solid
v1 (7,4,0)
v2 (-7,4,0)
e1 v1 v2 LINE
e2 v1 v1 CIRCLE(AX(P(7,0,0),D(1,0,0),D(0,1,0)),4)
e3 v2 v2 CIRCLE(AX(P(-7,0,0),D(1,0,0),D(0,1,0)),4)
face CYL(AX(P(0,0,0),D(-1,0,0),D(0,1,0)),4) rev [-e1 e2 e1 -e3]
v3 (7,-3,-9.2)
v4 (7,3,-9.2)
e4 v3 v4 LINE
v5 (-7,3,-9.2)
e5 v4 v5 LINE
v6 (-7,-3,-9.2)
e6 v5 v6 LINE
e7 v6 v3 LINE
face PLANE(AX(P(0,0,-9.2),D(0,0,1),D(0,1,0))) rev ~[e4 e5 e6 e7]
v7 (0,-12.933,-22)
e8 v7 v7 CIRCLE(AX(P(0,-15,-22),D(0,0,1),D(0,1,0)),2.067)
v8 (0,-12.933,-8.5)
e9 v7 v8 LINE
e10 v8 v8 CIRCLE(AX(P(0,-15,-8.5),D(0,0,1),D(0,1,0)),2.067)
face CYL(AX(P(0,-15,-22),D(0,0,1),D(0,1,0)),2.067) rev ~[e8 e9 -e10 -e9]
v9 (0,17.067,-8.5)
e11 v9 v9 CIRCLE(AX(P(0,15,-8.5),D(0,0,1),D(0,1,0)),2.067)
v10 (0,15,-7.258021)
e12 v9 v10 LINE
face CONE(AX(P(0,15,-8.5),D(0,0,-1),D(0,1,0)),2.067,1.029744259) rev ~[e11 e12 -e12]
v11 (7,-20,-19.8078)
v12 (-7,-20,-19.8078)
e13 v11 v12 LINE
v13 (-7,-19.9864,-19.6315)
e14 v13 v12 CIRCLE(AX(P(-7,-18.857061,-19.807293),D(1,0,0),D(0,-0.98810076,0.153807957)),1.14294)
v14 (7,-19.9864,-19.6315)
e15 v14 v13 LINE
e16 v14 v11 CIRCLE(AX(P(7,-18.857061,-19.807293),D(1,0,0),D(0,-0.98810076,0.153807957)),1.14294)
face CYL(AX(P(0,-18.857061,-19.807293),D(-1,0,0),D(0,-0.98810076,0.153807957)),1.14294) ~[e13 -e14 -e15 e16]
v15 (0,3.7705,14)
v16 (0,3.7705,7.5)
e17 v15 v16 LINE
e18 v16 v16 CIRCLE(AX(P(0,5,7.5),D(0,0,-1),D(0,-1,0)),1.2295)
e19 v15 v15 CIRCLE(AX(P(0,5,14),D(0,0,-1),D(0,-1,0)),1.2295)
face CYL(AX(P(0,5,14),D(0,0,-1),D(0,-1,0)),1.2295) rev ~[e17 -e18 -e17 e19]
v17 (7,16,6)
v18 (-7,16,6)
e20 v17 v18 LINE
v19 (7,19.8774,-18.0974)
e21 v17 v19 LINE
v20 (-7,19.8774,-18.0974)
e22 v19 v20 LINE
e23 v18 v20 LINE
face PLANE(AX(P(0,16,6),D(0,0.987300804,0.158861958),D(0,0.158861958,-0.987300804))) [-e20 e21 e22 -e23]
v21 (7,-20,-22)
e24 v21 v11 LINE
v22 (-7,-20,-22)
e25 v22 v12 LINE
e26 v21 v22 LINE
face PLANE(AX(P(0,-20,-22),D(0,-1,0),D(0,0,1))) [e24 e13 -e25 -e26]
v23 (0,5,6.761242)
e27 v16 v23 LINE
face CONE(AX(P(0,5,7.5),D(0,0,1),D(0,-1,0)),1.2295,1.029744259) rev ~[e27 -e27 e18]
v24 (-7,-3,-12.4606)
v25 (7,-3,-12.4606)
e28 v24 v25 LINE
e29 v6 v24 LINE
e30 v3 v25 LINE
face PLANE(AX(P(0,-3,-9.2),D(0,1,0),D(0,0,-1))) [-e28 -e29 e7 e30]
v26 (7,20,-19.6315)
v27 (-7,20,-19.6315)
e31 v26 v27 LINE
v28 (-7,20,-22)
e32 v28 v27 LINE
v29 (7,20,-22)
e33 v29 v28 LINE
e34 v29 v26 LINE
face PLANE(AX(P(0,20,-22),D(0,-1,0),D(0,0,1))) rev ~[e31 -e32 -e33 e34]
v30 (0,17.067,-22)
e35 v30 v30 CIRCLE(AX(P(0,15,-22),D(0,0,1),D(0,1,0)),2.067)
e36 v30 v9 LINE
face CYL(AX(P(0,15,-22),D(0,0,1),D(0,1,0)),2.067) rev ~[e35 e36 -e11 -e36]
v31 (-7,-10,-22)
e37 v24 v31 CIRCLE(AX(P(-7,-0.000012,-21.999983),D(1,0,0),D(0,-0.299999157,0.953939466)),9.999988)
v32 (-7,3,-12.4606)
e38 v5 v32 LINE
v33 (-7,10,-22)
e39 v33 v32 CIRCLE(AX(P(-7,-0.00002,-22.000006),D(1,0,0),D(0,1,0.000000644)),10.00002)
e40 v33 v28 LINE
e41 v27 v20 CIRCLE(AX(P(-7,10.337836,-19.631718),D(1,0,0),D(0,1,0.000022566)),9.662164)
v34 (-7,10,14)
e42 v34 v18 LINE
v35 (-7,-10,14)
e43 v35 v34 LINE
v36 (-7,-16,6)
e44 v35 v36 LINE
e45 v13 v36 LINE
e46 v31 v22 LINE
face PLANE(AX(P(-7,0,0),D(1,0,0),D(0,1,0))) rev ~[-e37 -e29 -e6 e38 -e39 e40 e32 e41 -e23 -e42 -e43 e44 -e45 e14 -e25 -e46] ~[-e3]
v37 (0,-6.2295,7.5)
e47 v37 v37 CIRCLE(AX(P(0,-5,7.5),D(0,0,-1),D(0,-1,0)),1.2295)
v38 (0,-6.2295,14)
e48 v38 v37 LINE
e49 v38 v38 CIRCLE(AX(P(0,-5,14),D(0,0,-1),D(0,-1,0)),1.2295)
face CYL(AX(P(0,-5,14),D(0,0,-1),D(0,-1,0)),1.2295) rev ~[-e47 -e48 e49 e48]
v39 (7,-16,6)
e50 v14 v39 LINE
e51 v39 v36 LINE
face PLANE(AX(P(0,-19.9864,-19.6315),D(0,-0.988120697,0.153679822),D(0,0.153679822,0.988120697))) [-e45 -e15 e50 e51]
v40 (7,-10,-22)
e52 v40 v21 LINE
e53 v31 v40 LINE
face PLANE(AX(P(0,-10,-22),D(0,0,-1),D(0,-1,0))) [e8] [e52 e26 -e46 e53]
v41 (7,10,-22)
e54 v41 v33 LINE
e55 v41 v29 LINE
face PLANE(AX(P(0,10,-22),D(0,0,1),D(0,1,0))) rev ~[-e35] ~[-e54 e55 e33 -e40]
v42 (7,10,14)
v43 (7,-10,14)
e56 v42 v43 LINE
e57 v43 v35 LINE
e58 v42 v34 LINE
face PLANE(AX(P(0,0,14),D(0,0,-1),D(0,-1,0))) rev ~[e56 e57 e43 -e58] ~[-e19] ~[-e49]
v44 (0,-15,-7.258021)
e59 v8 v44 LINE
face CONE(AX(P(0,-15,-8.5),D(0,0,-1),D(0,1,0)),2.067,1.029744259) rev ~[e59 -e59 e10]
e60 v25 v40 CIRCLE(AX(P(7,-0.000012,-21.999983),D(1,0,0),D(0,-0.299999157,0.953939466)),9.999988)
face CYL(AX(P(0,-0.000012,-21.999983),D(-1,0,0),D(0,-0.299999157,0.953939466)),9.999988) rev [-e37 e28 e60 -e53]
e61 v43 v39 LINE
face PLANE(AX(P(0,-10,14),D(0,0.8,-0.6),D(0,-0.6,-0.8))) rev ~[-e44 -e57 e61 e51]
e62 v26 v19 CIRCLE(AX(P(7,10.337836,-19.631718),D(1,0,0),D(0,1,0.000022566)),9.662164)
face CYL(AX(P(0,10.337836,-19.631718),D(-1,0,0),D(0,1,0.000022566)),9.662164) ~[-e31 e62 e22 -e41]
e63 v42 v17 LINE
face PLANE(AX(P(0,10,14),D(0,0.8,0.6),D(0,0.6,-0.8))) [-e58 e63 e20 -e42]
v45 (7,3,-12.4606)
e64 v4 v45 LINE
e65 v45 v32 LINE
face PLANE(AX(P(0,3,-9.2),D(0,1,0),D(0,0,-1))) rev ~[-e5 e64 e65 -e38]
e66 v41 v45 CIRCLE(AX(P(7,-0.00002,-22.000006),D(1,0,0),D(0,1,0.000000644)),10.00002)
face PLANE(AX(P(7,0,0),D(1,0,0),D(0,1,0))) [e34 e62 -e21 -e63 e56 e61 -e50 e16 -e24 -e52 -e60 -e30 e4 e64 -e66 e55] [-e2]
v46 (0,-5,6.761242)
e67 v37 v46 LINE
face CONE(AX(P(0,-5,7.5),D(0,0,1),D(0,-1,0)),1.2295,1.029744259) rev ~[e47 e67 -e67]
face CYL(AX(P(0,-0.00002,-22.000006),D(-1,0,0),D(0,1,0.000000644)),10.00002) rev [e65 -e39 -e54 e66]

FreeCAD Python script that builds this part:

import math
import FreeCAD as App
import Part
import Sketcher

V = App.Vector
Q = App.Units.Quantity

doc = App.newDocument("Part")
params = doc.addObject("Spreadsheet::Sheet", "Params")
for row, (alias, value) in enumerate([
    ("sketch1_diameter", "8 mm"),
    ("sketch1_radius", "10 mm"),
    ("sketch1_width", "10 mm"),
    ("sketch1_width2", "6 mm"),
    ("sketch1_length", "10 mm"),
    ("pad1_length", "14 mm"),
    ("hole_diameter", "4.134 mm"),
    ("hole_depth", "13.5 mm"),
    ("hole2_diameter", "2.459 mm"),
    ("hole2_depth", "6.5 mm"),
], start=1):
    params.set(f"A{row}", alias)
    params.set(f"B{row}", "=" + value)
    params.setAlias(f"B{row}", alias)

body = doc.addObject("PartDesign::Body", "Body")

# Sketch on YZ plane
sketch1 = doc.addObject("Sketcher::SketchObject", "Sketch")
body.addObject(sketch1)
sketch1.AttachmentSupport = (doc.YZ_Plane, [""])
sketch1.MapMode = "FlatFace"
sketch1.addGeometry([
    Part.LineSegment(V(-20, -22, 0), V(-10, -22, 0)),  # 0
    Part.ArcOfCircle(Part.Circle(V(0, -22, 0), V(0, 0, 1), 10), math.radians(107), math.radians(180)),  # 1
    Part.LineSegment(V(-3, -12.46, 0), V(-3, -9.2, 0)),  # 2
    Part.LineSegment(V(-3, -9.2, 0), V(3, -9.2, 0)),  # 3
    Part.LineSegment(V(3, -9.2, 0), V(3, -12.46, 0)),  # 4
    Part.ArcOfCircle(Part.Circle(V(0, -22, 0), V(0, 0, 1), 10), math.radians(0), math.radians(73)),  # 5
    Part.LineSegment(V(10, -22, 0), V(20, -22, 0)),  # 6
    Part.LineSegment(V(20, -22, 0), V(20, -19.63, 0)),  # 7
    Part.ArcOfCircle(Part.Circle(V(10.34, -19.63, 0), V(0, 0, 1), 9.66), math.radians(0), math.radians(9.14)),  # 8
    Part.LineSegment(V(19.88, -18.1, 0), V(16, 6, 0)),  # 9
    Part.LineSegment(V(16, 6, 0), V(10, 14, 0)),  # 10
    Part.LineSegment(V(10, 14, 0), V(-10, 14, 0)),  # 11
    Part.LineSegment(V(-10, 14, 0), V(-16, 6, 0)),  # 12
    Part.LineSegment(V(-16, 6, 0), V(-19.99, -19.63, 0)),  # 13
    Part.ArcOfCircle(Part.Circle(V(-18.86, -19.81, 0), V(0, 0, 1), 1.14), math.radians(171.15), math.radians(180.03)),  # 14
    Part.LineSegment(V(-20, -19.81, 0), V(-20, -22, 0)),  # 15
    Part.Circle(V(0, 0, 0), V(0, 0, 1), 4),  # 16
], False)
sketch1.addConstraint([
    Sketcher.Constraint("Coincident", 0, 2, 1, 2),
    Sketcher.Constraint("Coincident", 1, 1, 2, 1),
    Sketcher.Constraint("Coincident", 2, 2, 3, 1),
    Sketcher.Constraint("Coincident", 3, 2, 4, 1),
    Sketcher.Constraint("Coincident", 4, 2, 5, 2),
    Sketcher.Constraint("Coincident", 5, 1, 6, 1),
    Sketcher.Constraint("Coincident", 6, 2, 7, 1),
    Sketcher.Constraint("Tangent", 7, 2, 8, 1),
    Sketcher.Constraint("Tangent", 8, 2, 9, 1),
    Sketcher.Constraint("Coincident", 9, 2, 10, 1),
    Sketcher.Constraint("Coincident", 10, 2, 11, 1),
    Sketcher.Constraint("Coincident", 11, 2, 12, 1),
    Sketcher.Constraint("Coincident", 12, 2, 13, 1),
    Sketcher.Constraint("Tangent", 13, 2, 14, 1),
    Sketcher.Constraint("Tangent", 14, 2, 15, 1),
    Sketcher.Constraint("Coincident", 15, 2, 0, 1),
    Sketcher.Constraint("Horizontal", 0),
    Sketcher.Constraint("Vertical", 2),
    Sketcher.Constraint("Horizontal", 3),
    Sketcher.Constraint("Vertical", 4),
    Sketcher.Constraint("Horizontal", 6),
    Sketcher.Constraint("Vertical", 7),
    Sketcher.Constraint("Horizontal", 11),
    Sketcher.Constraint("Vertical", 15),
    Sketcher.Constraint("Coincident", 16, 3, -1, 1),
    Sketcher.Constraint("Coincident", 5, 3, 1, 3),
    Sketcher.Constraint("Equal", 1, 5),
    Sketcher.Constraint("Symmetric", 1, 1, 4, 2, -2),
    Sketcher.Constraint("Symmetric", 9, 2, 12, 2, -2),
    Sketcher.Constraint("Symmetric", 6, 2, 15, 2, -2),
    Sketcher.Constraint("Horizontal", 5, 3, 0, 2),
    Sketcher.Constraint("Horizontal", 7, 2, 13, 2),
    Sketcher.Constraint("Vertical", 5, 1, 10, 2),
    Sketcher.Constraint("Vertical", 0, 2, 11, 2),
    Sketcher.Constraint("Diameter", 16, 8.0),
    Sketcher.Constraint("Radius", 1, 10.0),
    Sketcher.Constraint("DistanceX", 0, 1, 0, 2, 10.0),
    Sketcher.Constraint("DistanceX", 3, 1, 3, 2, 6.0),
    Sketcher.Constraint("Distance", 10, 10.0),
    Sketcher.Constraint("DistanceY", 1, 3, -1, 1, 22.0),
    Sketcher.Constraint("DistanceY", -1, 1, 9, 2, 6.0),
    Sketcher.Constraint("DistanceY", -1, 1, 10, 2, 14.0),
    Sketcher.Constraint("DistanceY", 1, 3, 2, 2, 12.8),
    Sketcher.Constraint("Radius", 14, 1.143),
    Sketcher.Constraint("Angle", 9, Q("99.1408 deg")),
    Sketcher.Constraint("Angle", 13, Q("-98.8402 deg")),
])
sketch1.setExpression("Constraints[34]", "Params.sketch1_diameter")
sketch1.setExpression("Constraints[35]", "Params.sketch1_radius")
sketch1.setExpression("Constraints[36]", "Params.sketch1_width")
sketch1.setExpression("Constraints[37]", "Params.sketch1_width2")
sketch1.setExpression("Constraints[38]", "Params.sketch1_length")
pad1 = doc.addObject("PartDesign::Pad", "Pad")
body.addObject(pad1)
pad1.Profile = sketch1
pad1.setExpression("Length", "Params.pad1_length")
pad1.Midplane = True

# Sketch on XY plane
sketch2 = doc.addObject("Sketcher::SketchObject", "Sketch001")
body.addObject(sketch2)
sketch2.AttachmentSupport = (doc.XY_Plane, [""])
sketch2.MapMode = "FlatFace"
sketch2.AttachmentOffset = App.Placement(V(0, 0, -22), App.Rotation())
sketch2.addGeometry([
    Part.Circle(V(0, -15, 0), V(0, 0, 1), 2.1),
    Part.Circle(V(0, 15, 0), V(0, 0, 1), 2.1),
], False)
sketch2.addConstraint([
    Sketcher.Constraint("Equal", 0, 1),
    Sketcher.Constraint("Symmetric", 0, 3, 1, 3, -1, 1),
    Sketcher.Constraint("PointOnObject", 0, 3, -2),
    Sketcher.Constraint("Diameter", 0, 4.134),
    Sketcher.Constraint("DistanceY", 0, 3, -1, 1, 15.0),
])
doc.recompute()
hole = doc.addObject("PartDesign::Hole", "Hole")
body.addObject(hole)
hole.Profile = sketch2
hole.ThreadType = "None"
hole.setExpression("Diameter", "Params.hole_diameter")
hole.DepthType = "Dimension"
hole.setExpression("Depth", "Params.hole_depth")
hole.DrillPoint = "Angled"
hole.DrillPointAngle = 118
hole.Reversed = True

# Sketch on XY plane
sketch3 = doc.addObject("Sketcher::SketchObject", "Sketch002")
body.addObject(sketch3)
sketch3.AttachmentSupport = (doc.XY_Plane, [""])
sketch3.MapMode = "FlatFace"
sketch3.AttachmentOffset = App.Placement(V(0, 0, 14), App.Rotation())
sketch3.addGeometry([
    Part.Circle(V(0, 5, 0), V(0, 0, 1), 1.2),
    Part.Circle(V(0, -5, 0), V(0, 0, 1), 1.2),
], False)
sketch3.addConstraint([
    Sketcher.Constraint("Equal", 0, 1),
    Sketcher.Constraint("Symmetric", 0, 3, 1, 3, -1, 1),
    Sketcher.Constraint("PointOnObject", 0, 3, -2),
    Sketcher.Constraint("Diameter", 0, 2.459),
    Sketcher.Constraint("DistanceY", -1, 1, 0, 3, 5.0),
])
doc.recompute()
hole2 = doc.addObject("PartDesign::Hole", "Hole001")
body.addObject(hole2)
hole2.Profile = sketch3
hole2.ThreadType = "None"
hole2.setExpression("Diameter", "Params.hole2_diameter")
hole2.DepthType = "Dimension"
hole2.setExpression("Depth", "Params.hole2_depth")
hole2.DrillPoint = "Angled"
hole2.DrillPointAngle = 118

doc.recompute()
